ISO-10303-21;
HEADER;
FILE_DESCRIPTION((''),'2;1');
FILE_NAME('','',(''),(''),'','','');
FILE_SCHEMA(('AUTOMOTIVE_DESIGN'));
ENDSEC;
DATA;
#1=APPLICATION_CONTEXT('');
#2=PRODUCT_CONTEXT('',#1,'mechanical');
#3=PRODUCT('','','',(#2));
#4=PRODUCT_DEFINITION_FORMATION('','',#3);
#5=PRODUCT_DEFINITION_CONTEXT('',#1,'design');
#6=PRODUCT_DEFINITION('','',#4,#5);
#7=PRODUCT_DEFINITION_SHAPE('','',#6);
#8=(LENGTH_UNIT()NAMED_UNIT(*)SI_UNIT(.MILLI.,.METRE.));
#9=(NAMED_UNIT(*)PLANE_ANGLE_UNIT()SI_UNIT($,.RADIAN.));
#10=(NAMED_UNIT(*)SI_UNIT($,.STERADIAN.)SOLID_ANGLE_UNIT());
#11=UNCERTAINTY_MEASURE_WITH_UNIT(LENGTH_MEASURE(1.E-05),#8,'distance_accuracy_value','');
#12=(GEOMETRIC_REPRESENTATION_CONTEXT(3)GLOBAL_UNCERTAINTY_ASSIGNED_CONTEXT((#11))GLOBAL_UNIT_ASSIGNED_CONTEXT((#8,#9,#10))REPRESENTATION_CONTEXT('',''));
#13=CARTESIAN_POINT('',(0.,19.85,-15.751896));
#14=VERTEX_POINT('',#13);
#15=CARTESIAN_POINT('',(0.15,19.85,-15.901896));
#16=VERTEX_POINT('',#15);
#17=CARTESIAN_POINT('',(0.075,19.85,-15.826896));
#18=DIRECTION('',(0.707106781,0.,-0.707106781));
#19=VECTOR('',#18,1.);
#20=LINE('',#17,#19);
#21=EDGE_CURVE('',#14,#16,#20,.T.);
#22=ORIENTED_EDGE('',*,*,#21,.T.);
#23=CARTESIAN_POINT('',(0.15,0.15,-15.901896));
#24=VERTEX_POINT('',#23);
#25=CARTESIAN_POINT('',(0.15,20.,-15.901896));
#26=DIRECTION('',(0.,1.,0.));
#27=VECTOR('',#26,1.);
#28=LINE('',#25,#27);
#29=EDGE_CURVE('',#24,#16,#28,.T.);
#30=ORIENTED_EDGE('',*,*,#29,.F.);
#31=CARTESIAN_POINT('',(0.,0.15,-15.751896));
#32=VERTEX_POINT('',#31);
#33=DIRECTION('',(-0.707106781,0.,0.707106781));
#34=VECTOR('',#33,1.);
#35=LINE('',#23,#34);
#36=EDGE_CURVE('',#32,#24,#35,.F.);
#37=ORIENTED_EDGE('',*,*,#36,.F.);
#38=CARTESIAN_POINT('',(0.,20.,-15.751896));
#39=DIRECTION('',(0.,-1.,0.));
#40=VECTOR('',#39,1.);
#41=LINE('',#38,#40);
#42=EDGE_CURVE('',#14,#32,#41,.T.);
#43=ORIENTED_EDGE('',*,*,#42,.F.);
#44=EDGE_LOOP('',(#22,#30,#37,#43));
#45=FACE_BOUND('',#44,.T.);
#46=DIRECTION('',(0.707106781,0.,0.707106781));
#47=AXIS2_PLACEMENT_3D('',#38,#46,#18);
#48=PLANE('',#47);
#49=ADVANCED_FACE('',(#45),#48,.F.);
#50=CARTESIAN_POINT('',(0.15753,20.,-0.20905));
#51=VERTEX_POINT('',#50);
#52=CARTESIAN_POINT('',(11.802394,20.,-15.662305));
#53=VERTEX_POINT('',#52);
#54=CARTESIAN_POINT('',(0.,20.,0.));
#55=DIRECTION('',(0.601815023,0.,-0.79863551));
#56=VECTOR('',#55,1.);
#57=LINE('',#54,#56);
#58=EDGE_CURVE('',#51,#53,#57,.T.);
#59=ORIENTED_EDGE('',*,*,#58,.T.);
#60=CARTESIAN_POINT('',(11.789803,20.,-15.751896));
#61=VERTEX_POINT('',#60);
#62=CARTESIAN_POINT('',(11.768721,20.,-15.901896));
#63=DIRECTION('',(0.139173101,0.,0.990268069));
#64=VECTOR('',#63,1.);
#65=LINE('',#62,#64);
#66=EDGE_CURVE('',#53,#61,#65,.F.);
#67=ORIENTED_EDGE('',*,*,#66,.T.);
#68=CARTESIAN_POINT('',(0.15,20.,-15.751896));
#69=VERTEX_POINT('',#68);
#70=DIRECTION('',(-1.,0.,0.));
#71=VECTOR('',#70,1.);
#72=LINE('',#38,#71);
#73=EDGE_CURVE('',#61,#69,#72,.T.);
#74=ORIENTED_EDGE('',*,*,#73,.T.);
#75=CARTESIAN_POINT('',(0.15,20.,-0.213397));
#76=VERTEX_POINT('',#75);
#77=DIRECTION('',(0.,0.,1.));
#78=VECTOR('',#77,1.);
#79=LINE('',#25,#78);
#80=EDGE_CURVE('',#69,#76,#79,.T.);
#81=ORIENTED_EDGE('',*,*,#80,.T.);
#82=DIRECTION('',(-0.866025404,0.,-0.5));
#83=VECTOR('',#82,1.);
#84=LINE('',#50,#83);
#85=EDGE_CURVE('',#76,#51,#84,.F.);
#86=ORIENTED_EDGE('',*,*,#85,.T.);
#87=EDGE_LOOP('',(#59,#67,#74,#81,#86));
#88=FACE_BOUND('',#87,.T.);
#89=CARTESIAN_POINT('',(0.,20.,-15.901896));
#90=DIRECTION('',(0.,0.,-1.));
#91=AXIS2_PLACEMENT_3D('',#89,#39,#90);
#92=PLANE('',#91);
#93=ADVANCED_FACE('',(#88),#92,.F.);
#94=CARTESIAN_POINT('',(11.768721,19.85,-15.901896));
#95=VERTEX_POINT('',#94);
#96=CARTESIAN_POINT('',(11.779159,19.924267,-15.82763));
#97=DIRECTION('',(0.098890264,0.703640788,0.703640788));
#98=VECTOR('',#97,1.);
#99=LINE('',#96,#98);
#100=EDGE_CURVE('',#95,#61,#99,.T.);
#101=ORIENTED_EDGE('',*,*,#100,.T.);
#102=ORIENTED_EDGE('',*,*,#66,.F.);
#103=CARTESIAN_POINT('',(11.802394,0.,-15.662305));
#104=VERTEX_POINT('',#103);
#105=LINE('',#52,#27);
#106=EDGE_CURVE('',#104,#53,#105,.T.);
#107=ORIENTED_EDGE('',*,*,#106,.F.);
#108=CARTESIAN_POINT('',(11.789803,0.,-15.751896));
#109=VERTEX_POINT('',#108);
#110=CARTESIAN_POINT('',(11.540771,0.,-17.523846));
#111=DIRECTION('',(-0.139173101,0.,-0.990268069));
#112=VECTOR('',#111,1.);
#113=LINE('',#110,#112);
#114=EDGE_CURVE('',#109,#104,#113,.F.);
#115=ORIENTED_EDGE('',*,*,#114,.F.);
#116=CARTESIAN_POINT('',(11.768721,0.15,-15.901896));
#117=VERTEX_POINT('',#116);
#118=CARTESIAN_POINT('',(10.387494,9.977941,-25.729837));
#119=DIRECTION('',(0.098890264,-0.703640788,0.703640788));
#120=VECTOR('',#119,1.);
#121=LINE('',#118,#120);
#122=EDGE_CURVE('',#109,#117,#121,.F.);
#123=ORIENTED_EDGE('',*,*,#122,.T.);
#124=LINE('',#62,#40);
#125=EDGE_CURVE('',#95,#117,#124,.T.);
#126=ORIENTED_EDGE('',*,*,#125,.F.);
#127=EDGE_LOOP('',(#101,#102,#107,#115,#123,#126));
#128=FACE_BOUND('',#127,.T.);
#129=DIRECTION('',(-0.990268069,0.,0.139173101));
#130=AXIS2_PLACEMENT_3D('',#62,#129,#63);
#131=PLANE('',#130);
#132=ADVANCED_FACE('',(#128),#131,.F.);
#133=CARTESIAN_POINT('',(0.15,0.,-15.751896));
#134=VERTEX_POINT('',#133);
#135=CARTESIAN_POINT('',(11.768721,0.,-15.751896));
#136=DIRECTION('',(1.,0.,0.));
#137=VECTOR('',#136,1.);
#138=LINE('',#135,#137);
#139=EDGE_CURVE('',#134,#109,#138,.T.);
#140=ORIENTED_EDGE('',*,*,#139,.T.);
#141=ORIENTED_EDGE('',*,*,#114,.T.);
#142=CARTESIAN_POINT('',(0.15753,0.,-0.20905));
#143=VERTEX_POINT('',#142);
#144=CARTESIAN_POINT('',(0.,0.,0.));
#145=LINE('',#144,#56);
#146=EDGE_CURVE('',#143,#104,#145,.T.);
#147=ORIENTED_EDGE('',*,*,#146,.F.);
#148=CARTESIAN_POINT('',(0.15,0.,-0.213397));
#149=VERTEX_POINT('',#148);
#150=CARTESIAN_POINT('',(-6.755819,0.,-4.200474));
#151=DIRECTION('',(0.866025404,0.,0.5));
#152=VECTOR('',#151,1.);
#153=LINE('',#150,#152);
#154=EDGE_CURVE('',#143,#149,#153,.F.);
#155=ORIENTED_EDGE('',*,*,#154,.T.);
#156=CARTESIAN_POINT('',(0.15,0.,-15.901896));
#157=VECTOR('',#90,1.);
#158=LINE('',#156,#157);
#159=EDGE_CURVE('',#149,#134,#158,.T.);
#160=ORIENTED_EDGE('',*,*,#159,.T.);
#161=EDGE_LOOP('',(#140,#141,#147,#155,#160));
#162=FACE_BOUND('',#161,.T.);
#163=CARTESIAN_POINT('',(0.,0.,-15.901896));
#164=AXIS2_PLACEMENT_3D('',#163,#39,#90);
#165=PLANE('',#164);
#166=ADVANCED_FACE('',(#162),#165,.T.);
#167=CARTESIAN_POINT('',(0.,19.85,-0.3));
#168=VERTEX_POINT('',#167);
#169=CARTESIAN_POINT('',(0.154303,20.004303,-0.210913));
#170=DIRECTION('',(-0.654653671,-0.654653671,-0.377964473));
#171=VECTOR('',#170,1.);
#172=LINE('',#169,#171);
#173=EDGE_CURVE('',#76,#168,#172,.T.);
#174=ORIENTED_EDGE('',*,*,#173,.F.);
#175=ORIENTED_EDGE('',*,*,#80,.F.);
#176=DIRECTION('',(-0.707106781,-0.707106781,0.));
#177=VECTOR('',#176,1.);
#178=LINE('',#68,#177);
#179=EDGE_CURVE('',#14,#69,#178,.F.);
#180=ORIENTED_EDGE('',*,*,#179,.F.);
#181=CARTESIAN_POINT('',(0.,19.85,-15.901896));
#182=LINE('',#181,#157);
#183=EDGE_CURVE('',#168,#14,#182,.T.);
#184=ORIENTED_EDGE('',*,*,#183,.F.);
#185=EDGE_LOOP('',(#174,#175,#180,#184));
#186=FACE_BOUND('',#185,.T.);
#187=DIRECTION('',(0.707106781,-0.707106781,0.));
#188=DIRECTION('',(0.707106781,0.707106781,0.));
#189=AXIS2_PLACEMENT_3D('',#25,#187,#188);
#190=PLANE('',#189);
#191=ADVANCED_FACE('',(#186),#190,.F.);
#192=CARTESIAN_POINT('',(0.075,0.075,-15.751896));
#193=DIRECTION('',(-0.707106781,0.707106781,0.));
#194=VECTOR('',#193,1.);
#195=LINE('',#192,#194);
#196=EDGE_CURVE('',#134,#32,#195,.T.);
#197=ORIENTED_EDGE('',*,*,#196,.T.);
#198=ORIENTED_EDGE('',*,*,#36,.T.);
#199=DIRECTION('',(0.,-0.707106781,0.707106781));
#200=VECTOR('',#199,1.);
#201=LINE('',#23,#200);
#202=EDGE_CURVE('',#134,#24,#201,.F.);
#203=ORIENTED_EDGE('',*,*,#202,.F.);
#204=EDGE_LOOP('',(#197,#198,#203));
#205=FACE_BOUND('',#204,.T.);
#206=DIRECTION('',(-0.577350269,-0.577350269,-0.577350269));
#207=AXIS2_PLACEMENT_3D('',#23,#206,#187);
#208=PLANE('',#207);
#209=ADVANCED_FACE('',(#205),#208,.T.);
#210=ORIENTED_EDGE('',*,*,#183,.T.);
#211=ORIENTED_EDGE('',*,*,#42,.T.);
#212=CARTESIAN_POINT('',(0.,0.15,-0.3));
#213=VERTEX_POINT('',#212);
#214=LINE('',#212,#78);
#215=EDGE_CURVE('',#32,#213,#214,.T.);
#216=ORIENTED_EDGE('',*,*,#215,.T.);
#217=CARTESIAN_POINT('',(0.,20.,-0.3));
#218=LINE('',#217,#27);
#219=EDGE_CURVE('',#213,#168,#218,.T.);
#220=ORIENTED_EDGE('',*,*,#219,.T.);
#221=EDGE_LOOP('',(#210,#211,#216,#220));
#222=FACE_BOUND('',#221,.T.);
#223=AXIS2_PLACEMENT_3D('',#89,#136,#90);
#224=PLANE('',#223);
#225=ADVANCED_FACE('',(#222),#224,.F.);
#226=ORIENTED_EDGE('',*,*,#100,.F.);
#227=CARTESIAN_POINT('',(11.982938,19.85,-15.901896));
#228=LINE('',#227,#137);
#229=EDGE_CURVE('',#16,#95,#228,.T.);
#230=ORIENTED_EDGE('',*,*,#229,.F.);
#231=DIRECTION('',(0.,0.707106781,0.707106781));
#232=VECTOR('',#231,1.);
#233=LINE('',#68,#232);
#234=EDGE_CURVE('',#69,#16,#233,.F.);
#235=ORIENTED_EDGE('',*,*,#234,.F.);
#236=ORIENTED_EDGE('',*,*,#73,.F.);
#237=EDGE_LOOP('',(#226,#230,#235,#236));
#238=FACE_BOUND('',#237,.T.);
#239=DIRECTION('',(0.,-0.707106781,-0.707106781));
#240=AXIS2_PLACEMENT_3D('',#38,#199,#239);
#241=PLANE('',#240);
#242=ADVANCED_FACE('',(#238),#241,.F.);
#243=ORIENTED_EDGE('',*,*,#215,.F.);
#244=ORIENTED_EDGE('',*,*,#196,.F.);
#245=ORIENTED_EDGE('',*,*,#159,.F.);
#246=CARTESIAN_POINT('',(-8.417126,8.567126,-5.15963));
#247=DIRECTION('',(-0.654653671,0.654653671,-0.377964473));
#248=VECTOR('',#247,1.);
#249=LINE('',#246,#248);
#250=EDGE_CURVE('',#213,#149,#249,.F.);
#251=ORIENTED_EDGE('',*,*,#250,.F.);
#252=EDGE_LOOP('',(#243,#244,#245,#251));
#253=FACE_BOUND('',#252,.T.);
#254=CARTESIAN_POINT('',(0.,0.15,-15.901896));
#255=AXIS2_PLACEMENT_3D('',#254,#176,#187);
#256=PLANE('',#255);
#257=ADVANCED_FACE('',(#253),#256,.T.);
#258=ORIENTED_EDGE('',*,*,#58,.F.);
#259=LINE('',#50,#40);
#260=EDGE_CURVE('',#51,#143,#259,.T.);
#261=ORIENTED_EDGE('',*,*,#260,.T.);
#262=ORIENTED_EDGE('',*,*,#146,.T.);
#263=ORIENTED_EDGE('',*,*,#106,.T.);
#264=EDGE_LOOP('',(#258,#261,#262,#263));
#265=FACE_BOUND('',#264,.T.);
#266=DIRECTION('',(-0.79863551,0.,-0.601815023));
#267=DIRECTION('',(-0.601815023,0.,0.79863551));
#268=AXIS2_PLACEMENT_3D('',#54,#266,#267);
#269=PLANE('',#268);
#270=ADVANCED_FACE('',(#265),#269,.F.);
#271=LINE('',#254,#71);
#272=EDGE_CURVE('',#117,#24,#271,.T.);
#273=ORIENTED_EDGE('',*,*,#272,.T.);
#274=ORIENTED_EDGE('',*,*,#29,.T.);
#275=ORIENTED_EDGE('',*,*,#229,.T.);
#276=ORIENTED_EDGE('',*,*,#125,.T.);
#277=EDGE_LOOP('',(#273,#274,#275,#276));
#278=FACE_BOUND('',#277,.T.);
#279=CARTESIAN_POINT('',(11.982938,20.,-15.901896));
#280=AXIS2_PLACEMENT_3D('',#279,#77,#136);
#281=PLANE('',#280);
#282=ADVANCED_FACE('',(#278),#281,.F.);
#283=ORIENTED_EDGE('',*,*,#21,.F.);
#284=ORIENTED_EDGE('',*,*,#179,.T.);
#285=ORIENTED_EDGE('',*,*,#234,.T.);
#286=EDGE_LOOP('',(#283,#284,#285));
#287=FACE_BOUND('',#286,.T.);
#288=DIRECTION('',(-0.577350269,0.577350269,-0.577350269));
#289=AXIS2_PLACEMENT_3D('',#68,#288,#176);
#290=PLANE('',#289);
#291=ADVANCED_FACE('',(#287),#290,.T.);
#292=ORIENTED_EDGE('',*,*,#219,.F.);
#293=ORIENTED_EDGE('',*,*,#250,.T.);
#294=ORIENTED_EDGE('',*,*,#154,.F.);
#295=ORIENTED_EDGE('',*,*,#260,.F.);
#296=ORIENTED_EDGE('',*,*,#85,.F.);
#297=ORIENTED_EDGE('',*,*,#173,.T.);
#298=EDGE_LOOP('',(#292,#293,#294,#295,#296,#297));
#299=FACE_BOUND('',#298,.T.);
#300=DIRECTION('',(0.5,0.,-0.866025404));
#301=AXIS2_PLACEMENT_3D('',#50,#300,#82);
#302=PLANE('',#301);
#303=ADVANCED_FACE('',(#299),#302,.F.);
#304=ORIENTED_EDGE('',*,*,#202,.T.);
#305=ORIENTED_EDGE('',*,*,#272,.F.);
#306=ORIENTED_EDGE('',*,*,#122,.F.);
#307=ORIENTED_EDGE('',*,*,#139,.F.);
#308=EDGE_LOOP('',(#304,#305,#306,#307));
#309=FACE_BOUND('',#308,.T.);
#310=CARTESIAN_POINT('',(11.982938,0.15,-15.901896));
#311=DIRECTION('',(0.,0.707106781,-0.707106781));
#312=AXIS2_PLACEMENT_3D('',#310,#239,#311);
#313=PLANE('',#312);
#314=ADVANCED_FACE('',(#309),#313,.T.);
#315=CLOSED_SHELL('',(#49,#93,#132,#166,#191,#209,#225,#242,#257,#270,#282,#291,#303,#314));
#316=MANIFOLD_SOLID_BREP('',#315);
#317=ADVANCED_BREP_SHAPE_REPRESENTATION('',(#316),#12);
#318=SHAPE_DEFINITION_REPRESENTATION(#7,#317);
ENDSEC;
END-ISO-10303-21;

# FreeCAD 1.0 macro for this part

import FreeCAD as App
import Part
import Sketcher
Q = App.Units.Quantity


def edges_at(feature, points):
    """Names of the edges that pass closest to the given points."""
    edges = feature.Shape.Edges
    near = lambda p: min(range(len(edges)), key=lambda i: edges[i].distToShape(Part.Vertex(*p))[0])
    return sorted({f"Edge{near(p) + 1}" for p in points})

doc = App.newDocument("Part")
body = doc.addObject("PartDesign::Body", "Body")

# Sketch on XZ plane
sketch1 = body.newObject("Sketcher::SketchObject", "Sketch")
sketch1.AttachmentSupport = (doc.getObject("XZ_Plane"), [""])
sketch1.MapMode = "FlatFace"
sketch1.addGeometry([
    Part.LineSegment(App.Vector(0, 0, 0), App.Vector(12, -16, 0)),
    Part.LineSegment(App.Vector(12, -16, 0), App.Vector(0, -16, 0)),
    Part.LineSegment(App.Vector(0, -16, 0), App.Vector(0, 0, 0)),
], False)
sketch1.addConstraint([
    Sketcher.Constraint("Coincident", 0, 2, 1, 1),
    Sketcher.Constraint("Coincident", 1, 2, 2, 1),
    Sketcher.Constraint("Coincident", 2, 2, 0, 1),
    Sketcher.Constraint("Horizontal", 1),
    Sketcher.Constraint("Vertical", 2),
    Sketcher.Constraint("Coincident", 2, 2, -1, 1),
    Sketcher.Constraint("Angle", 0, Q("-53 deg")),
    Sketcher.Constraint("DistanceX", 1, 2, 1, 1, Q("11.982938 mm")),
])
pad1 = body.newObject("PartDesign::Pad", "Pad")
pad1.Profile = sketch1
pad1.Length = 20
pad1.Reversed = True
doc.recompute()

chamfer = body.newObject("PartDesign::Chamfer", "Chamfer")
chamfer.Base = (pad1, edges_at(pad1, [(0, 10, 0)]))
chamfer.ChamferType = "Two distances"
chamfer.Size = 0.3
chamfer.Size2 = 0.261759
chamfer.FlipDirection = True
doc.recompute()

chamfer2 = body.newObject("PartDesign::Chamfer", "Chamfer001")
chamfer2.Base = (chamfer, edges_at(chamfer, [(11.983, 10, -15.902)]))
chamfer2.ChamferType = "Two distances"
chamfer2.Size = 0.3
chamfer2.Size2 = 0.214217
doc.recompute()

chamfer3 = body.newObject("PartDesign::Chamfer", "Chamfer002")
chamfer3.Base = (chamfer2, edges_at(chamfer2, [
    (5.884, 0, -15.902),
    (5.884, 20, -15.902),
    (0, 20, -8.101),
    (0, 0, -8.101),
    (0, 10, -15.902),
]))
chamfer3.Size = 0.15

doc.recompute()
